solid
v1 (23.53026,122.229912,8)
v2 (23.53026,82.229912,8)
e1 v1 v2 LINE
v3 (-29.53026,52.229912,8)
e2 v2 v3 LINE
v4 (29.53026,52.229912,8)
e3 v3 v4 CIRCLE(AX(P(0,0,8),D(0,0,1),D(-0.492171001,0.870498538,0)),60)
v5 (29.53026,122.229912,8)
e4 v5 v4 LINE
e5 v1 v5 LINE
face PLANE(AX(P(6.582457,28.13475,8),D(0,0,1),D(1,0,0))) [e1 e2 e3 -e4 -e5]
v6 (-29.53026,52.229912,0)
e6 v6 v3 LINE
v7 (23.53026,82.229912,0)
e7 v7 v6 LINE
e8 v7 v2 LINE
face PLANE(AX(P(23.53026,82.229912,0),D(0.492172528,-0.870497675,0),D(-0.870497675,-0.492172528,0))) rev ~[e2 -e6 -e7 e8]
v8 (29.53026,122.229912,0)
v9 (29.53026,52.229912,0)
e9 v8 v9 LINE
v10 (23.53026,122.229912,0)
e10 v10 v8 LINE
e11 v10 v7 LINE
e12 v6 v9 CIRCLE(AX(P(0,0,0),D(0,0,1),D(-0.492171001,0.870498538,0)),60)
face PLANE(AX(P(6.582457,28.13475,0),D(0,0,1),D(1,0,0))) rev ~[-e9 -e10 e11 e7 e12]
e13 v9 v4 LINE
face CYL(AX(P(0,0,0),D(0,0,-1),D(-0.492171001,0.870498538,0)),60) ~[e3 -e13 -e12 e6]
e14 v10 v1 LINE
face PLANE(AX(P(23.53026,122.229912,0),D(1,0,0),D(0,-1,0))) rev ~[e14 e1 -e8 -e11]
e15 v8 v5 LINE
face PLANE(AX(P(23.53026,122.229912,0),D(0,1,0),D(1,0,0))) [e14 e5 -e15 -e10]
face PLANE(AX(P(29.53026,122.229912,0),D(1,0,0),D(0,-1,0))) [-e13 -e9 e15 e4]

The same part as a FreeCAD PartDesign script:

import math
import FreeCAD as App
import Part
import Sketcher

V = App.Vector
Q = App.Units.Quantity

doc = App.newDocument("Part")
body = doc.addObject("PartDesign::Body", "Body")

sketch1 = body.newObject("Sketcher::SketchObject", "Sketch")
sketch1.AttachmentSupport = (doc.getObject("XY_Plane"), [""])
sketch1.MapMode = "FlatFace"
sketch1.addGeometry([
    Part.ArcOfCircle(Part.Circle(V(0, 0, 0), V(0, 0, 1), 60), math.radians(119.483375), math.radians(420.516625)),
    Part.LineSegment(V(29.53026, 52.229912, 0), V(29.53026, 122.229912, 0)),
    Part.LineSegment(V(29.53026, 122.229912, 0), V(23.53026, 122.229912, 0)),
    Part.LineSegment(V(23.53026, 122.229912, 0), V(23.53026, 82.229912, 0)),
    Part.LineSegment(V(23.53026, 82.229912, 0), V(-29.53026, 52.229912, 0)),
], False)
sketch1.addConstraint([
    Sketcher.Constraint("Coincident", 0, 2, 1, 1),
    Sketcher.Constraint("Coincident", 1, 2, 2, 1),
    Sketcher.Constraint("Coincident", 2, 2, 3, 1),
    Sketcher.Constraint("Coincident", 3, 2, 4, 1),
    Sketcher.Constraint("Coincident", 4, 2, 0, 1),
    Sketcher.Constraint("Vertical", 1),
    Sketcher.Constraint("Horizontal", 2),
    Sketcher.Constraint("Vertical", 3),
    Sketcher.Constraint("Coincident", 0, 3, -1, 1),
    Sketcher.Constraint("Radius", 0, Q("60 mm")),
    Sketcher.Constraint("DistanceX", 2, 2, 2, 1, Q("6 mm")),
    Sketcher.Constraint("DistanceY", 1, 1, 1, 2, Q("70 mm")),
    Sketcher.Constraint("DistanceY", 3, 2, 3, 1, Q("40 mm")),
    Sketcher.Constraint("DistanceY", 4, 2, 3, 2, Q("30 mm")),
    Sketcher.Constraint("DistanceX", -1, 1, 0, 2, Q("29.53026 mm")),
])
pad1 = body.newObject("PartDesign::Pad", "Pad")
pad1.Profile = sketch1
pad1.Length = 8

doc.recompute()
